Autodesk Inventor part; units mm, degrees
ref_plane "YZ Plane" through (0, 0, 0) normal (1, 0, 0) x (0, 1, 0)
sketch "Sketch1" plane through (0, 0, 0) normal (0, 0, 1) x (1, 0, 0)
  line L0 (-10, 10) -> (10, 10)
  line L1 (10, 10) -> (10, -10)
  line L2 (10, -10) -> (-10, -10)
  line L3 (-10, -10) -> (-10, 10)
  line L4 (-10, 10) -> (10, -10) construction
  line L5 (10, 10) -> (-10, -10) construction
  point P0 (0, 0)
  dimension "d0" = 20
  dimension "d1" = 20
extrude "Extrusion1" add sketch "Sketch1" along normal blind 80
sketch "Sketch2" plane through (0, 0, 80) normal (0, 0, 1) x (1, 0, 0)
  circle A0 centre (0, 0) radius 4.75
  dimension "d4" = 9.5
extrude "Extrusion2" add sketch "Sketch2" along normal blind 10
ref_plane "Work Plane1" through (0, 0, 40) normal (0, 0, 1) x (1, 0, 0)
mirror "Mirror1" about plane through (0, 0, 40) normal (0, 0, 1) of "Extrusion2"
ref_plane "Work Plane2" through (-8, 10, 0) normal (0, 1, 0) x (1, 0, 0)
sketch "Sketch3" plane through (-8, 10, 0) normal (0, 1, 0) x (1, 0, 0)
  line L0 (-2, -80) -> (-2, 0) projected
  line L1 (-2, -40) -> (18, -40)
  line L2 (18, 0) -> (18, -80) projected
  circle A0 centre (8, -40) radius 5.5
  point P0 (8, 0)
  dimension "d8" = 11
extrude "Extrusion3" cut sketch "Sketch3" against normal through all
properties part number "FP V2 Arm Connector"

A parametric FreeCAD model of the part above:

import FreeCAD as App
import Part
import Sketcher


def add_polygon(sketch, points):
    """Adds a closed chain of lines whose ends are joined by coincident constraints."""
    first, n = sketch.GeometryCount, len(points)
    for a, b in zip(points, points[1:] + points[:1]):
        sketch.addGeometry(Part.LineSegment(App.Vector(*a, 0), App.Vector(*b, 0)), False)
    for i in range(n):
        sketch.addConstraint(Sketcher.Constraint("Coincident", first + i, 2, first + (i + 1) % n, 1))

doc = App.newDocument("Part")
body = doc.addObject("PartDesign::Body", "Body")

sketch1 = body.newObject("Sketcher::SketchObject", "Sketch")
sketch1.AttachmentSupport = (doc.getObject("XY_Plane"), [""])
sketch1.MapMode = "FlatFace"
add_polygon(sketch1, [(10, 10), (-10, 10), (-10, -10), (10, -10)])
sketch1.addConstraint([
    Sketcher.Constraint("Horizontal", 0),
    Sketcher.Constraint("Vertical", 1),
    Sketcher.Constraint("Horizontal", 2),
    Sketcher.Constraint("Vertical", 3),
    Sketcher.Constraint("Symmetric", 0, 2, 2, 2, -1, 1),
    Sketcher.Constraint("Equal", 2, 1),
    Sketcher.Constraint("DistanceX", 0, 2, 0, 1, 20.0),
])
pad1 = body.newObject("PartDesign::Pad", "Pad")
pad1.Profile = sketch1
pad1.Length = 80

sketch2 = body.newObject("Sketcher::SketchObject", "Sketch001")
sketch2.AttachmentSupport = (doc.getObject("XY_Plane"), [""])
sketch2.MapMode = "FlatFace"
sketch2.AttachmentOffset = App.Placement(App.Vector(0, 0, 80), App.Rotation())
sketch2.addGeometry(Part.Circle(App.Vector(0, 0, 0), App.Vector(0, 0, 1), 4.8), False)
sketch2.addConstraint([
    Sketcher.Constraint("Coincident", 0, 3, -1, 1),
    Sketcher.Constraint("Diameter", 0, 9.5),
])
pad2 = body.newObject("PartDesign::Pad", "Pad001")
pad2.Profile = sketch2
pad2.Length = 10
doc.recompute()

datumplane = body.newObject("PartDesign::Plane", "DatumPlane")
datumplane.AttachmentSupport = (doc.getObject("XY_Plane"), [""])
datumplane.MapMode = "FlatFace"
datumplane.AttachmentOffset = App.Placement(App.Vector(0, 0, 40), App.Rotation())
mirrored = body.newObject("PartDesign::Mirrored", "Mirrored")
mirrored.Originals = [pad2]
mirrored.MirrorPlane = (datumplane, [""])
body.Tip = mirrored

sketch3 = body.newObject("Sketcher::SketchObject", "Sketch002")
sketch3.AttachmentSupport = (doc.getObject("XZ_Plane"), [""])
sketch3.MapMode = "FlatFace"
sketch3.AttachmentOffset = App.Placement(App.Vector(0, 0, -10), App.Rotation())
sketch3.addGeometry(Part.Circle(App.Vector(0, 40, 0), App.Vector(0, 0, 1), 6), False)
sketch3.addConstraint([
    Sketcher.Constraint("PointOnObject", 0, 3, -2),
    Sketcher.Constraint("Diameter", 0, 11.0),
    Sketcher.Constraint("DistanceY", -1, 1, 0, 3, 40.0),
])
pocket1 = body.newObject("PartDesign::Pocket", "Pocket")
pocket1.Profile = sketch3
pocket1.Type = "ThroughAll"
pocket1.Reversed = True

doc.recompute()
